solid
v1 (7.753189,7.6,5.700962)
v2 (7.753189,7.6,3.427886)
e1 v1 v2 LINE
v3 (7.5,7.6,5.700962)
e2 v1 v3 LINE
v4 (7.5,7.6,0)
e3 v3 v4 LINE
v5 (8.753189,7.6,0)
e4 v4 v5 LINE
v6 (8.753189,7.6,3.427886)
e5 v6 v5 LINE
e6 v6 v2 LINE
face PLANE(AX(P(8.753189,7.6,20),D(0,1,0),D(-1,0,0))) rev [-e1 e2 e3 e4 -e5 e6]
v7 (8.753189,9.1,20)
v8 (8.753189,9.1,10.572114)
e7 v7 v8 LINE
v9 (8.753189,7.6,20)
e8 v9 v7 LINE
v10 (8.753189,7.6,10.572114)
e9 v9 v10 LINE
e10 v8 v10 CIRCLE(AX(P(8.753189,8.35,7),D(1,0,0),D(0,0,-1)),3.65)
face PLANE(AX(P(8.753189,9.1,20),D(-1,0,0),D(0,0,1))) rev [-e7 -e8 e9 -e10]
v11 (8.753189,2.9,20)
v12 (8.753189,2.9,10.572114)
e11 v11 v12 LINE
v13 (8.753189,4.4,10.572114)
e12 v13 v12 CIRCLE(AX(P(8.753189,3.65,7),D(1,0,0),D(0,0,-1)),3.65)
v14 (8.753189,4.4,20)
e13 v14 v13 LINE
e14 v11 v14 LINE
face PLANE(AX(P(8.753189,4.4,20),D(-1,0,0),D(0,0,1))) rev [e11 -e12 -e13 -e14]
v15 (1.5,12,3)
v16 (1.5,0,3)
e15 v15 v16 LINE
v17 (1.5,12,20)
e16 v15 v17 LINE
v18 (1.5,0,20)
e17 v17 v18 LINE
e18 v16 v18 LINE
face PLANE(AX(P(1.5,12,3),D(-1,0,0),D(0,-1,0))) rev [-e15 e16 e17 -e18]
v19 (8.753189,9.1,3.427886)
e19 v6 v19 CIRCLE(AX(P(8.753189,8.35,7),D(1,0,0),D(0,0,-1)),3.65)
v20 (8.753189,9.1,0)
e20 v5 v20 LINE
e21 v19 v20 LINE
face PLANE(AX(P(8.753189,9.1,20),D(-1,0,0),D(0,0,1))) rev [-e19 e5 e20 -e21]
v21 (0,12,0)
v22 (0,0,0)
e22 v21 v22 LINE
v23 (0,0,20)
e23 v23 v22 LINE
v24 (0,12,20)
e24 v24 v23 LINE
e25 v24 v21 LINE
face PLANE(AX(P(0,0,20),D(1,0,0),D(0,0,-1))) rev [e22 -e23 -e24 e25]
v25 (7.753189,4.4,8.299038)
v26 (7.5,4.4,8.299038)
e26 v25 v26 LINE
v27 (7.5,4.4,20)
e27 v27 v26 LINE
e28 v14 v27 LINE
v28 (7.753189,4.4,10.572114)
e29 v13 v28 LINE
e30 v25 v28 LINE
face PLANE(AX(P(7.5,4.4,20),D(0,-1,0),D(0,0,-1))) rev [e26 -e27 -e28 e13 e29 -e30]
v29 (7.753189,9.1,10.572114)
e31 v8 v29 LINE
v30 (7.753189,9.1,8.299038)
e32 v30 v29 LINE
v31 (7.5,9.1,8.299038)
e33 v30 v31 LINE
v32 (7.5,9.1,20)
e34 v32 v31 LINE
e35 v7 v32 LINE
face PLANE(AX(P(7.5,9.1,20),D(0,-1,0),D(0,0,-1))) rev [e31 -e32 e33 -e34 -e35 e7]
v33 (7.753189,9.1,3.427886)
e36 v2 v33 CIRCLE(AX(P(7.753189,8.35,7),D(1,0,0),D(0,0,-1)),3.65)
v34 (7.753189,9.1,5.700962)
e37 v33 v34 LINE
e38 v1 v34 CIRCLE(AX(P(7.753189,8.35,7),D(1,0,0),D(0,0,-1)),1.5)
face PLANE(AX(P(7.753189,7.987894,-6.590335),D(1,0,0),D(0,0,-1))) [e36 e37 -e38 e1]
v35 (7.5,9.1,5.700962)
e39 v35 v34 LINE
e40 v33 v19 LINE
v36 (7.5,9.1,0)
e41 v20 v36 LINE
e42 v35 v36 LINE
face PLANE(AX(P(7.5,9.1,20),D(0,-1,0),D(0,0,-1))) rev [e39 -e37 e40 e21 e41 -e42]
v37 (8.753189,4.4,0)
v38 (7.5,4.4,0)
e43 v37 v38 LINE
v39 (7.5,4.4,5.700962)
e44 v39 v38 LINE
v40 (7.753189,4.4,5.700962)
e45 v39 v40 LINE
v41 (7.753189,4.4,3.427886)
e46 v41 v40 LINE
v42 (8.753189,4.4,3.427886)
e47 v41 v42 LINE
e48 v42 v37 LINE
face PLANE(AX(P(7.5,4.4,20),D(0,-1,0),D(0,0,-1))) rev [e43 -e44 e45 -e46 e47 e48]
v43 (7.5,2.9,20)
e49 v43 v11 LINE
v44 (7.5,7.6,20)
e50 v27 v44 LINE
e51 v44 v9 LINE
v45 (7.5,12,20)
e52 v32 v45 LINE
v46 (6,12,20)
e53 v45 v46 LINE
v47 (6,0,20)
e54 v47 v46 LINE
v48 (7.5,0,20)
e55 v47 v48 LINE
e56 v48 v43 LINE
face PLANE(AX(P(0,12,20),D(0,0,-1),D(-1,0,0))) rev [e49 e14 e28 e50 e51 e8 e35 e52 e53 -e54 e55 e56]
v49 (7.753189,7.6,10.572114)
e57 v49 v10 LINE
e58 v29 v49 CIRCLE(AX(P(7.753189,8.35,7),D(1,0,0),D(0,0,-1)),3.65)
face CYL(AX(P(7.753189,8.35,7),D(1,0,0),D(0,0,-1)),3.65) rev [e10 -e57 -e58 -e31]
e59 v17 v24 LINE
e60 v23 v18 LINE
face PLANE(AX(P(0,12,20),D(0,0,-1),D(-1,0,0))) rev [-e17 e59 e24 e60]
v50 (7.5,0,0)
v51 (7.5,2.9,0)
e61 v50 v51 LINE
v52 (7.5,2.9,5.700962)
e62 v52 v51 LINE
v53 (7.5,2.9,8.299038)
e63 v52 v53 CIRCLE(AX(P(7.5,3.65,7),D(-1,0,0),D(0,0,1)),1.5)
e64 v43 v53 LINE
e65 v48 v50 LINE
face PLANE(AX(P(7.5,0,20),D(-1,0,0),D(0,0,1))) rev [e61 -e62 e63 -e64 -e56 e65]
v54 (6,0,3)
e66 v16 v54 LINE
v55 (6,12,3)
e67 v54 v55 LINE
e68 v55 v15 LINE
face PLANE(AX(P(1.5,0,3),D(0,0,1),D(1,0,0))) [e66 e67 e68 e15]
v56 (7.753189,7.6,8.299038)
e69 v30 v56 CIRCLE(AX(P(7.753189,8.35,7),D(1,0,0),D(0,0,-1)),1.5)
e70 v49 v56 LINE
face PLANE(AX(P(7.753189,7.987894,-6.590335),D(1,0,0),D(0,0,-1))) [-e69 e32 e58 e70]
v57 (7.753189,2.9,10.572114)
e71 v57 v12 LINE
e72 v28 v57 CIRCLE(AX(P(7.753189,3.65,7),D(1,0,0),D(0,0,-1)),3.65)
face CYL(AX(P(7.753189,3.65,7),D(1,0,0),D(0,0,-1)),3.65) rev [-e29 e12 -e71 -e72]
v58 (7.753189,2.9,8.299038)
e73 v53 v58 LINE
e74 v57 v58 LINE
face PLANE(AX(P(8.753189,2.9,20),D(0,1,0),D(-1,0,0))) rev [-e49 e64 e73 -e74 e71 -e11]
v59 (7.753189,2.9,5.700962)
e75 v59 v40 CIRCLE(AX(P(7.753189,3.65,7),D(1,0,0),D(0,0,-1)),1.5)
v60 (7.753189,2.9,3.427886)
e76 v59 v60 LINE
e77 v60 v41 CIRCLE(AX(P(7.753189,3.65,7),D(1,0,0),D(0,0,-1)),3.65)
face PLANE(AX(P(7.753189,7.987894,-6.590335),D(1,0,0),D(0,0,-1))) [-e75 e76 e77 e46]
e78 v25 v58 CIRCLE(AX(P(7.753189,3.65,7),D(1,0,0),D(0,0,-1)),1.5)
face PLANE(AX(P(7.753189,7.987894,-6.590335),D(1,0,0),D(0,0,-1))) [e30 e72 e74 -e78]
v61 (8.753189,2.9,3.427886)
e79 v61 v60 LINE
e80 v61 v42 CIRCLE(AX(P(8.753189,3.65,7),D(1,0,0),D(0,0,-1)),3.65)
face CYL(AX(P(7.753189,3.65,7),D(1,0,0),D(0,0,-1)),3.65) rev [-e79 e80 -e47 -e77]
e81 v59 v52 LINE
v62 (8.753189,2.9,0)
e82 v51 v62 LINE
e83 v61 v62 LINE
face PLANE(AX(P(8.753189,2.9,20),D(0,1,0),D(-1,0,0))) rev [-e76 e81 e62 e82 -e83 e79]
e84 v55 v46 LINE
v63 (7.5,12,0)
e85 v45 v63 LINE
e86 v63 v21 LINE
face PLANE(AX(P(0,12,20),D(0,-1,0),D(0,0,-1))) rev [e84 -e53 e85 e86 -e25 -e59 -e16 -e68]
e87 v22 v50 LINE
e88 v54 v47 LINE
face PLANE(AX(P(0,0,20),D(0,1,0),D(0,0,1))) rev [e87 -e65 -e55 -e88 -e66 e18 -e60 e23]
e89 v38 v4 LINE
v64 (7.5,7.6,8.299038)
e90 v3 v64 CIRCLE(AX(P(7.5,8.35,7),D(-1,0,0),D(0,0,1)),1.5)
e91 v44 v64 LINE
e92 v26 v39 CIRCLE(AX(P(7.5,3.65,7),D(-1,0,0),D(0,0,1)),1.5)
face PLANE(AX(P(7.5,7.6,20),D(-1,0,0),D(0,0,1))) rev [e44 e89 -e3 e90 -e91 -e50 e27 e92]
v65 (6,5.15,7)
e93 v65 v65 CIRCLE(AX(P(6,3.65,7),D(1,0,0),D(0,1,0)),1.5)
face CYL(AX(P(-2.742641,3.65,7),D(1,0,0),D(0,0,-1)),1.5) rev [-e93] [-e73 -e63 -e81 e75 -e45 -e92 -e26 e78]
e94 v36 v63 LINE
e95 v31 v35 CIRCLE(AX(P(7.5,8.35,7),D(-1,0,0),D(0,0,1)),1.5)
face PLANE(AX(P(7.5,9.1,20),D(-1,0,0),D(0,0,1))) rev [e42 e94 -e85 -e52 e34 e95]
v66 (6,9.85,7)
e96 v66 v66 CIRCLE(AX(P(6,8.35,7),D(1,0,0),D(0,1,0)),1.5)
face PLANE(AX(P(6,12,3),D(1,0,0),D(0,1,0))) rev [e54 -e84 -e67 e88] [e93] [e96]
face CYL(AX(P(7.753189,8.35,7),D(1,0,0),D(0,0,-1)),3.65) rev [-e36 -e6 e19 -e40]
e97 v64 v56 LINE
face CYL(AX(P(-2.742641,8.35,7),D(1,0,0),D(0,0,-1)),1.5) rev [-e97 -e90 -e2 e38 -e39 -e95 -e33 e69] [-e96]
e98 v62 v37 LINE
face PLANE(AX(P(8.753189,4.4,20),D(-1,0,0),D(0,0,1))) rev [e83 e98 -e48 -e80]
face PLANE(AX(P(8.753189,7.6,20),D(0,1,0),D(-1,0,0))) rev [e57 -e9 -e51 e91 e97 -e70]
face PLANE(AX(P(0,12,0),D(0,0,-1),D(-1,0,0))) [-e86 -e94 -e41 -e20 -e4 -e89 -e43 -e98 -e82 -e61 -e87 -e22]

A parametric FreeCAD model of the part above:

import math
import FreeCAD as App
import Part
import Sketcher
from FreeCAD import Vector
Q = App.Units.Quantity

doc = App.newDocument("Part")
params = doc.addObject("Spreadsheet::Sheet", "Params")
for row, (alias, value) in enumerate([
    ("sketch1_height", "12 mm"),
    ("sketch1_width", "7.5 mm"),
    ("sketch1_height2", "2.9 mm"),
    ("sketch1_height3", "1.5 mm"),
    ("pad1_length", "20 mm"),
    ("sketch2_height", "12 mm"),
    ("sketch2_width", "4.5 mm"),
    ("pocket1_length", "17 mm"),
    ("sketch3_diameter", "3 mm"),
    ("sketch3_radius", "3.65 mm"),
    ("pocket2_length", "1 mm"),
    ("sketch4_diameter", "3 mm"),
    ("pocket3_length", "7.253189 mm"),
], start=1):
    params.set(f"A{row}", alias)
    params.set(f"B{row}", "=" + value)
    params.setAlias(f"B{row}", alias)

body = doc.addObject("PartDesign::Body", "Body")

# Sketch on XY plane
sketch1 = body.newObject("Sketcher::SketchObject", "Sketch")
sketch1.AttachmentSupport = (doc.getObject("XY_Plane"), [""])
sketch1.MapMode = "FlatFace"
sketch1.addGeometry(Part.LineSegment(Vector(8.753189, 9.1, 0), Vector(7.5, 9.1, 0)), False)
sketch1.addGeometry(Part.LineSegment(Vector(7.5, 9.1, 0), Vector(7.5, 12, 0)), False)
sketch1.addGeometry(Part.LineSegment(Vector(7.5, 12, 0), Vector(0, 12, 0)), False)
sketch1.addGeometry(Part.LineSegment(Vector(0, 12, 0), Vector(0, 0, 0)), False)
sketch1.addGeometry(Part.LineSegment(Vector(0, 0, 0), Vector(7.5, 0, 0)), False)
sketch1.addGeometry(Part.LineSegment(Vector(7.5, 0, 0), Vector(7.5, 2.9, 0)), False)
sketch1.addGeometry(Part.LineSegment(Vector(7.5, 2.9, 0), Vector(8.753189, 2.9, 0)), False)
sketch1.addGeometry(Part.LineSegment(Vector(8.753189, 2.9, 0), Vector(8.753189, 4.4, 0)), False)
sketch1.addGeometry(Part.LineSegment(Vector(8.753189, 4.4, 0), Vector(7.5, 4.4, 0)), False)
sketch1.addGeometry(Part.LineSegment(Vector(7.5, 4.4, 0), Vector(7.5, 7.6, 0)), False)
sketch1.addGeometry(Part.LineSegment(Vector(7.5, 7.6, 0), Vector(8.753189, 7.6, 0)), False)
sketch1.addGeometry(Part.LineSegment(Vector(8.753189, 7.6, 0), Vector(8.753189, 9.1, 0)), False)
sketch1.addConstraint(Sketcher.Constraint("Coincident", 0, 2, 1, 1))
sketch1.addConstraint(Sketcher.Constraint("Coincident", 1, 2, 2, 1))
sketch1.addConstraint(Sketcher.Constraint("Coincident", 2, 2, 3, 1))
sketch1.addConstraint(Sketcher.Constraint("Coincident", 3, 2, 4, 1))
sketch1.addConstraint(Sketcher.Constraint("Coincident", 4, 2, 5, 1))
sketch1.addConstraint(Sketcher.Constraint("Coincident", 5, 2, 6, 1))
sketch1.addConstraint(Sketcher.Constraint("Coincident", 6, 2, 7, 1))
sketch1.addConstraint(Sketcher.Constraint("Coincident", 7, 2, 8, 1))
sketch1.addConstraint(Sketcher.Constraint("Coincident", 8, 2, 9, 1))
sketch1.addConstraint(Sketcher.Constraint("Coincident", 9, 2, 10, 1))
sketch1.addConstraint(Sketcher.Constraint("Coincident", 10, 2, 11, 1))
sketch1.addConstraint(Sketcher.Constraint("Coincident", 11, 2, 0, 1))
sketch1.addConstraint(Sketcher.Constraint("Horizontal", 0))
sketch1.addConstraint(Sketcher.Constraint("Vertical", 1))
sketch1.addConstraint(Sketcher.Constraint("Horizontal", 2))
sketch1.addConstraint(Sketcher.Constraint("Vertical", 3))
sketch1.addConstraint(Sketcher.Constraint("Horizontal", 4))
sketch1.addConstraint(Sketcher.Constraint("Vertical", 5))
sketch1.addConstraint(Sketcher.Constraint("Horizontal", 6))
sketch1.addConstraint(Sketcher.Constraint("Vertical", 7))
sketch1.addConstraint(Sketcher.Constraint("Horizontal", 8))
sketch1.addConstraint(Sketcher.Constraint("Vertical", 9))
sketch1.addConstraint(Sketcher.Constraint("Horizontal", 10))
sketch1.addConstraint(Sketcher.Constraint("Vertical", 11))
sketch1.addConstraint(Sketcher.Constraint("Coincident", 3, 2, -1, 1))
sketch1.addConstraint(Sketcher.Constraint("Vertical", 1, 2, 4, 2))
sketch1.addConstraint(Sketcher.Constraint("Vertical", 5, 2, 8, 2))
sketch1.addConstraint(Sketcher.Constraint("Vertical", 7, 2, 10, 2))
sketch1.addConstraint(Sketcher.Constraint("Equal", 1, 5))
sketch1.addConstraint(Sketcher.Constraint("Equal", 7, 11))
sketch1.addConstraint(Sketcher.Constraint("DistanceY", 3, 2, 3, 1, Q("12 mm")))
sketch1.addConstraint(Sketcher.Constraint("DistanceX", 2, 2, 2, 1, Q("7.5 mm")))
sketch1.addConstraint(Sketcher.Constraint("DistanceY", 1, 1, 1, 2, Q("2.9 mm")))
sketch1.addConstraint(Sketcher.Constraint("DistanceY", 7, 1, 7, 2, Q("1.5 mm")))
sketch1.addConstraint(Sketcher.Constraint("DistanceX", 0, 2, 0, 1, Q("1.253189 mm")))
sketch1.setExpression("Constraints[30]", "Params.sketch1_height")
sketch1.setExpression("Constraints[31]", "Params.sketch1_width")
sketch1.setExpression("Constraints[32]", "Params.sketch1_height2")
sketch1.setExpression("Constraints[33]", "Params.sketch1_height3")
pad1 = body.newObject("PartDesign::Pad", "Pad")
pad1.Profile = sketch1
pad1.setExpression("Length", "Params.pad1_length")

# Sketch on XY plane
sketch2 = body.newObject("Sketcher::SketchObject", "Sketch001")
sketch2.AttachmentSupport = (doc.getObject("XY_Plane"), [""])
sketch2.MapMode = "FlatFace"
sketch2.AttachmentOffset = App.Placement(Vector(0, 0, 20), App.Rotation())
sketch2.addGeometry(Part.LineSegment(Vector(1.5, 12, 0), Vector(1.5, 0, 0)), False)
sketch2.addGeometry(Part.LineSegment(Vector(1.5, 0, 0), Vector(6, 0, 0)), False)
sketch2.addGeometry(Part.LineSegment(Vector(6, 0, 0), Vector(6, 12, 0)), False)
sketch2.addGeometry(Part.LineSegment(Vector(6, 12, 0), Vector(1.5, 12, 0)), False)
sketch2.addConstraint(Sketcher.Constraint("Coincident", 0, 2, 1, 1))
sketch2.addConstraint(Sketcher.Constraint("Coincident", 1, 2, 2, 1))
sketch2.addConstraint(Sketcher.Constraint("Coincident", 2, 2, 3, 1))
sketch2.addConstraint(Sketcher.Constraint("Coincident", 3, 2, 0, 1))
sketch2.addConstraint(Sketcher.Constraint("Vertical", 0))
sketch2.addConstraint(Sketcher.Constraint("Horizontal", 1))
sketch2.addConstraint(Sketcher.Constraint("Vertical", 2))
sketch2.addConstraint(Sketcher.Constraint("Horizontal", 3))
sketch2.addConstraint(Sketcher.Constraint("PointOnObject", 0, 2, -1))
sketch2.addConstraint(Sketcher.Constraint("DistanceY", 0, 2, 0, 1, Q("12 mm")))
sketch2.addConstraint(Sketcher.Constraint("DistanceX", 1, 1, 1, 2, Q("4.5 mm")))
sketch2.addConstraint(Sketcher.Constraint("DistanceX", -1, 1, 1, 2, Q("6 mm")))
sketch2.setExpression("Constraints[9]", "Params.sketch2_height")
sketch2.setExpression("Constraints[10]", "Params.sketch2_width")
pocket1 = body.newObject("PartDesign::Pocket", "Pocket")
pocket1.Profile = sketch2
pocket1.setExpression("Length", "Params.pocket1_length")

# Sketch on YZ plane
sketch3 = body.newObject("Sketcher::SketchObject", "Sketch002")
sketch3.AttachmentSupport = (doc.getObject("YZ_Plane"), [""])
sketch3.MapMode = "FlatFace"
sketch3.AttachmentOffset = App.Placement(Vector(0, 0, 8.753189), App.Rotation())
sketch3.addGeometry(Part.ArcOfCircle(Part.Circle(Vector(8.35, 7, 0), Vector(0, 0, 1), 3.65), math.radians(-101.857567), math.radians(-78.142433)), False)
sketch3.addGeometry(Part.ArcOfCircle(Part.Circle(Vector(8.35, 7, 0), Vector(0, 0, 1), 3.65), math.radians(-78.142433), math.radians(78.142433)), False)
sketch3.addGeometry(Part.ArcOfCircle(Part.Circle(Vector(8.35, 7, 0), Vector(0, 0, 1), 3.65), math.radians(78.142433), math.radians(101.857567)), False)
sketch3.addGeometry(Part.ArcOfCircle(Part.Circle(Vector(8.35, 7, 0), Vector(0, 0, 1), 3.65), math.radians(101.857567), math.radians(130.07843)), False)
sketch3.addGeometry(Part.ArcOfCircle(Part.Circle(Vector(3.65, 7, 0), Vector(0, 0, 1), 3.65), math.radians(49.92157), math.radians(310.07843)), False)
sketch3.addGeometry(Part.ArcOfCircle(Part.Circle(Vector(8.35, 7, 0), Vector(0, 0, 1), 3.65), math.radians(-130.07843), math.radians(-101.857567)), False)
sketch3.addGeometry(Part.ArcOfCircle(Part.Circle(Vector(8.35, 7, 0), Vector(0, 0, 1), 1.5), math.radians(-90), math.radians(-60)), False)
sketch3.addGeometry(Part.ArcOfCircle(Part.Circle(Vector(8.35, 7, 0), Vector(0, 0, 1), 1.5), math.radians(-120), math.radians(-90)), False)
sketch3.addGeometry(Part.ArcOfCircle(Part.Circle(Vector(8.35, 7, 0), Vector(0, 0, 1), 1.5), math.radians(120), math.radians(240)), False)
sketch3.addGeometry(Part.ArcOfCircle(Part.Circle(Vector(8.35, 7, 0), Vector(0, 0, 1), 1.5), math.radians(60), math.radians(120)), False)
sketch3.addGeometry(Part.ArcOfCircle(Part.Circle(Vector(8.35, 7, 0), Vector(0, 0, 1), 1.5), math.radians(-60), math.radians(60)), False)
sketch3.addGeometry(Part.Circle(Vector(3.65, 7, 0), Vector(0, 0, 1), 1.5), False)
sketch3.addConstraint(Sketcher.Constraint("Tangent", 0, 2, 1, 1))
sketch3.addConstraint(Sketcher.Constraint("Tangent", 1, 2, 2, 1))
sketch3.addConstraint(Sketcher.Constraint("Tangent", 2, 2, 3, 1))
sketch3.addConstraint(Sketcher.Constraint("Coincident", 3, 2, 4, 1))
sketch3.addConstraint(Sketcher.Constraint("Coincident", 4, 2, 5, 1))
sketch3.addConstraint(Sketcher.Constraint("Tangent", 5, 2, 0, 1))
sketch3.addConstraint(Sketcher.Constraint("Tangent", 6, 1, 7, 2))
sketch3.addConstraint(Sketcher.Constraint("Tangent", 7, 1, 8, 2))
sketch3.addConstraint(Sketcher.Constraint("Tangent", 8, 1, 9, 2))
sketch3.addConstraint(Sketcher.Constraint("Tangent", 9, 1, 10, 2))
sketch3.addConstraint(Sketcher.Constraint("Tangent", 10, 1, 6, 2))
sketch3.addConstraint(Sketcher.Constraint("Coincident", 2, 3, 0, 3))
sketch3.addConstraint(Sketcher.Constraint("Coincident", 6, 3, 0, 3))
sketch3.addConstraint(Sketcher.Constraint("Coincident", 8, 3, 0, 3))
sketch3.addConstraint(Sketcher.Constraint("Coincident", 11, 3, 4, 3))
sketch3.addConstraint(Sketcher.Constraint("Equal", 2, 3))
sketch3.addConstraint(Sketcher.Constraint("Equal", 3, 4))
sketch3.addConstraint(Sketcher.Constraint("Equal", 4, 5))
sketch3.addConstraint(Sketcher.Constraint("Equal", 10, 11))
sketch3.addConstraint(Sketcher.Constraint("Horizontal", 3, 3, 4, 3))
sketch3.addConstraint(Sketcher.Constraint("Horizontal", 1, 2, 2, 2))
sketch3.addConstraint(Sketcher.Constraint("Horizontal", 0, 2, 5, 2))
sketch3.addConstraint(Sketcher.Constraint("Horizontal", 8, 1, 9, 1))
sketch3.addConstraint(Sketcher.Constraint("Horizontal", 7, 1, 10, 1))
sketch3.addConstraint(Sketcher.Constraint("Vertical", 0, 2, 1, 2))
sketch3.addConstraint(Sketcher.Constraint("Vertical", 10, 3, 6, 1))
sketch3.addConstraint(Sketcher.Constraint("Vertical", 5, 2, 7, 1))
sketch3.addConstraint(Sketcher.Constraint("Vertical", 7, 1, 8, 1))
sketch3.addConstraint(Sketcher.Constraint("Diameter", 11, Q("3 mm")))
sketch3.addConstraint(Sketcher.Constraint("Radius", 0, Q("3.65 mm")))
sketch3.addConstraint(Sketcher.Constraint("DistanceY", -1, 1, 0, 3, Q("7 mm")))
sketch3.addConstraint(Sketcher.Constraint("DistanceX", -1, 1, 3, 2, Q("6 mm")))
sketch3.addConstraint(Sketcher.Constraint("DistanceX", -1, 1, 0, 2, Q("9.1 mm")))
sketch3.addConstraint(Sketcher.Constraint("DistanceX", -1, 1, 2, 2, Q("7.6 mm")))
sketch3.setExpression("Constraints[28]", "Params.sketch3_diameter")
sketch3.setExpression("Constraints[29]", "Params.sketch3_radius")
pocket2 = body.newObject("PartDesign::Pocket", "Pocket001")
pocket2.Profile = sketch3
pocket2.setExpression("Length", "Params.pocket2_length")

# Sketch on YZ plane
sketch4 = body.newObject("Sketcher::SketchObject", "Sketch003")
sketch4.AttachmentSupport = (doc.getObject("YZ_Plane"), [""])
sketch4.MapMode = "FlatFace"
sketch4.AttachmentOffset = App.Placement(Vector(0, 0, 8.753189), App.Rotation())
sketch4.addGeometry(Part.ArcOfCircle(Part.Circle(Vector(8.35, 7, 0), Vector(0, 0, 1), 1.5), math.radians(-120), math.radians(-90)), False)
sketch4.addGeometry(Part.ArcOfCircle(Part.Circle(Vector(8.35, 7, 0), Vector(0, 0, 1), 1.5), math.radians(-90), math.radians(-60)), False)
sketch4.addGeometry(Part.ArcOfCircle(Part.Circle(Vector(8.35, 7, 0), Vector(0, 0, 1), 1.5), math.radians(-60), math.radians(60)), False)
sketch4.addGeometry(Part.ArcOfCircle(Part.Circle(Vector(8.35, 7, 0), Vector(0, 0, 1), 1.5), math.radians(60), math.radians(120)), False)
sketch4.addGeometry(Part.ArcOfCircle(Part.Circle(Vector(8.35, 7, 0), Vector(0, 0, 1), 1.5), math.radians(120), math.radians(240)), False)
sketch4.addGeometry(Part.Circle(Vector(3.65, 7, 0), Vector(0, 0, 1), 1.5), False)
sketch4.addConstraint(Sketcher.Constraint("Tangent", 0, 2, 1, 1))
sketch4.addConstraint(Sketcher.Constraint("Tangent", 1, 2, 2, 1))
sketch4.addConstraint(Sketcher.Constraint("Tangent", 2, 2, 3, 1))
sketch4.addConstraint(Sketcher.Constraint("Tangent", 3, 2, 4, 1))
sketch4.addConstraint(Sketcher.Constraint("Tangent", 4, 2, 0, 1))
sketch4.addConstraint(Sketcher.Constraint("Coincident", 2, 3, 0, 3))
sketch4.addConstraint(Sketcher.Constraint("Equal", 4, 5))
sketch4.addConstraint(Sketcher.Constraint("Horizontal", 4, 3, 5, 3))
sketch4.addConstraint(Sketcher.Constraint("Horizontal", 2, 2, 3, 2))
sketch4.addConstraint(Sketcher.Constraint("Horizontal", 1, 2, 4, 2))
sketch4.addConstraint(Sketcher.Constraint("Vertical", 4, 3, 0, 2))
sketch4.addConstraint(Sketcher.Constraint("Vertical", 1, 2, 2, 2))
sketch4.addConstraint(Sketcher.Constraint("Diameter", 5, Q("3 mm")))
sketch4.addConstraint(Sketcher.Constraint("DistanceY", -1, 1, 0, 3, Q("7 mm")))
sketch4.addConstraint(Sketcher.Constraint("DistanceX", -1, 1, 1, 2, Q("9.1 mm")))
sketch4.addConstraint(Sketcher.Constraint("DistanceX", -1, 1, 3, 2, Q("7.6 mm")))
sketch4.addConstraint(Sketcher.Constraint("DistanceX", 5, 3, 1, 3, Q("4.7 mm")))
sketch4.setExpression("Constraints[12]", "Params.sketch4_diameter")
pocket3 = body.newObject("PartDesign::Pocket", "Pocket002")
pocket3.Profile = sketch4
pocket3.setExpression("Length", "Params.pocket3_length")

doc.recompute()
